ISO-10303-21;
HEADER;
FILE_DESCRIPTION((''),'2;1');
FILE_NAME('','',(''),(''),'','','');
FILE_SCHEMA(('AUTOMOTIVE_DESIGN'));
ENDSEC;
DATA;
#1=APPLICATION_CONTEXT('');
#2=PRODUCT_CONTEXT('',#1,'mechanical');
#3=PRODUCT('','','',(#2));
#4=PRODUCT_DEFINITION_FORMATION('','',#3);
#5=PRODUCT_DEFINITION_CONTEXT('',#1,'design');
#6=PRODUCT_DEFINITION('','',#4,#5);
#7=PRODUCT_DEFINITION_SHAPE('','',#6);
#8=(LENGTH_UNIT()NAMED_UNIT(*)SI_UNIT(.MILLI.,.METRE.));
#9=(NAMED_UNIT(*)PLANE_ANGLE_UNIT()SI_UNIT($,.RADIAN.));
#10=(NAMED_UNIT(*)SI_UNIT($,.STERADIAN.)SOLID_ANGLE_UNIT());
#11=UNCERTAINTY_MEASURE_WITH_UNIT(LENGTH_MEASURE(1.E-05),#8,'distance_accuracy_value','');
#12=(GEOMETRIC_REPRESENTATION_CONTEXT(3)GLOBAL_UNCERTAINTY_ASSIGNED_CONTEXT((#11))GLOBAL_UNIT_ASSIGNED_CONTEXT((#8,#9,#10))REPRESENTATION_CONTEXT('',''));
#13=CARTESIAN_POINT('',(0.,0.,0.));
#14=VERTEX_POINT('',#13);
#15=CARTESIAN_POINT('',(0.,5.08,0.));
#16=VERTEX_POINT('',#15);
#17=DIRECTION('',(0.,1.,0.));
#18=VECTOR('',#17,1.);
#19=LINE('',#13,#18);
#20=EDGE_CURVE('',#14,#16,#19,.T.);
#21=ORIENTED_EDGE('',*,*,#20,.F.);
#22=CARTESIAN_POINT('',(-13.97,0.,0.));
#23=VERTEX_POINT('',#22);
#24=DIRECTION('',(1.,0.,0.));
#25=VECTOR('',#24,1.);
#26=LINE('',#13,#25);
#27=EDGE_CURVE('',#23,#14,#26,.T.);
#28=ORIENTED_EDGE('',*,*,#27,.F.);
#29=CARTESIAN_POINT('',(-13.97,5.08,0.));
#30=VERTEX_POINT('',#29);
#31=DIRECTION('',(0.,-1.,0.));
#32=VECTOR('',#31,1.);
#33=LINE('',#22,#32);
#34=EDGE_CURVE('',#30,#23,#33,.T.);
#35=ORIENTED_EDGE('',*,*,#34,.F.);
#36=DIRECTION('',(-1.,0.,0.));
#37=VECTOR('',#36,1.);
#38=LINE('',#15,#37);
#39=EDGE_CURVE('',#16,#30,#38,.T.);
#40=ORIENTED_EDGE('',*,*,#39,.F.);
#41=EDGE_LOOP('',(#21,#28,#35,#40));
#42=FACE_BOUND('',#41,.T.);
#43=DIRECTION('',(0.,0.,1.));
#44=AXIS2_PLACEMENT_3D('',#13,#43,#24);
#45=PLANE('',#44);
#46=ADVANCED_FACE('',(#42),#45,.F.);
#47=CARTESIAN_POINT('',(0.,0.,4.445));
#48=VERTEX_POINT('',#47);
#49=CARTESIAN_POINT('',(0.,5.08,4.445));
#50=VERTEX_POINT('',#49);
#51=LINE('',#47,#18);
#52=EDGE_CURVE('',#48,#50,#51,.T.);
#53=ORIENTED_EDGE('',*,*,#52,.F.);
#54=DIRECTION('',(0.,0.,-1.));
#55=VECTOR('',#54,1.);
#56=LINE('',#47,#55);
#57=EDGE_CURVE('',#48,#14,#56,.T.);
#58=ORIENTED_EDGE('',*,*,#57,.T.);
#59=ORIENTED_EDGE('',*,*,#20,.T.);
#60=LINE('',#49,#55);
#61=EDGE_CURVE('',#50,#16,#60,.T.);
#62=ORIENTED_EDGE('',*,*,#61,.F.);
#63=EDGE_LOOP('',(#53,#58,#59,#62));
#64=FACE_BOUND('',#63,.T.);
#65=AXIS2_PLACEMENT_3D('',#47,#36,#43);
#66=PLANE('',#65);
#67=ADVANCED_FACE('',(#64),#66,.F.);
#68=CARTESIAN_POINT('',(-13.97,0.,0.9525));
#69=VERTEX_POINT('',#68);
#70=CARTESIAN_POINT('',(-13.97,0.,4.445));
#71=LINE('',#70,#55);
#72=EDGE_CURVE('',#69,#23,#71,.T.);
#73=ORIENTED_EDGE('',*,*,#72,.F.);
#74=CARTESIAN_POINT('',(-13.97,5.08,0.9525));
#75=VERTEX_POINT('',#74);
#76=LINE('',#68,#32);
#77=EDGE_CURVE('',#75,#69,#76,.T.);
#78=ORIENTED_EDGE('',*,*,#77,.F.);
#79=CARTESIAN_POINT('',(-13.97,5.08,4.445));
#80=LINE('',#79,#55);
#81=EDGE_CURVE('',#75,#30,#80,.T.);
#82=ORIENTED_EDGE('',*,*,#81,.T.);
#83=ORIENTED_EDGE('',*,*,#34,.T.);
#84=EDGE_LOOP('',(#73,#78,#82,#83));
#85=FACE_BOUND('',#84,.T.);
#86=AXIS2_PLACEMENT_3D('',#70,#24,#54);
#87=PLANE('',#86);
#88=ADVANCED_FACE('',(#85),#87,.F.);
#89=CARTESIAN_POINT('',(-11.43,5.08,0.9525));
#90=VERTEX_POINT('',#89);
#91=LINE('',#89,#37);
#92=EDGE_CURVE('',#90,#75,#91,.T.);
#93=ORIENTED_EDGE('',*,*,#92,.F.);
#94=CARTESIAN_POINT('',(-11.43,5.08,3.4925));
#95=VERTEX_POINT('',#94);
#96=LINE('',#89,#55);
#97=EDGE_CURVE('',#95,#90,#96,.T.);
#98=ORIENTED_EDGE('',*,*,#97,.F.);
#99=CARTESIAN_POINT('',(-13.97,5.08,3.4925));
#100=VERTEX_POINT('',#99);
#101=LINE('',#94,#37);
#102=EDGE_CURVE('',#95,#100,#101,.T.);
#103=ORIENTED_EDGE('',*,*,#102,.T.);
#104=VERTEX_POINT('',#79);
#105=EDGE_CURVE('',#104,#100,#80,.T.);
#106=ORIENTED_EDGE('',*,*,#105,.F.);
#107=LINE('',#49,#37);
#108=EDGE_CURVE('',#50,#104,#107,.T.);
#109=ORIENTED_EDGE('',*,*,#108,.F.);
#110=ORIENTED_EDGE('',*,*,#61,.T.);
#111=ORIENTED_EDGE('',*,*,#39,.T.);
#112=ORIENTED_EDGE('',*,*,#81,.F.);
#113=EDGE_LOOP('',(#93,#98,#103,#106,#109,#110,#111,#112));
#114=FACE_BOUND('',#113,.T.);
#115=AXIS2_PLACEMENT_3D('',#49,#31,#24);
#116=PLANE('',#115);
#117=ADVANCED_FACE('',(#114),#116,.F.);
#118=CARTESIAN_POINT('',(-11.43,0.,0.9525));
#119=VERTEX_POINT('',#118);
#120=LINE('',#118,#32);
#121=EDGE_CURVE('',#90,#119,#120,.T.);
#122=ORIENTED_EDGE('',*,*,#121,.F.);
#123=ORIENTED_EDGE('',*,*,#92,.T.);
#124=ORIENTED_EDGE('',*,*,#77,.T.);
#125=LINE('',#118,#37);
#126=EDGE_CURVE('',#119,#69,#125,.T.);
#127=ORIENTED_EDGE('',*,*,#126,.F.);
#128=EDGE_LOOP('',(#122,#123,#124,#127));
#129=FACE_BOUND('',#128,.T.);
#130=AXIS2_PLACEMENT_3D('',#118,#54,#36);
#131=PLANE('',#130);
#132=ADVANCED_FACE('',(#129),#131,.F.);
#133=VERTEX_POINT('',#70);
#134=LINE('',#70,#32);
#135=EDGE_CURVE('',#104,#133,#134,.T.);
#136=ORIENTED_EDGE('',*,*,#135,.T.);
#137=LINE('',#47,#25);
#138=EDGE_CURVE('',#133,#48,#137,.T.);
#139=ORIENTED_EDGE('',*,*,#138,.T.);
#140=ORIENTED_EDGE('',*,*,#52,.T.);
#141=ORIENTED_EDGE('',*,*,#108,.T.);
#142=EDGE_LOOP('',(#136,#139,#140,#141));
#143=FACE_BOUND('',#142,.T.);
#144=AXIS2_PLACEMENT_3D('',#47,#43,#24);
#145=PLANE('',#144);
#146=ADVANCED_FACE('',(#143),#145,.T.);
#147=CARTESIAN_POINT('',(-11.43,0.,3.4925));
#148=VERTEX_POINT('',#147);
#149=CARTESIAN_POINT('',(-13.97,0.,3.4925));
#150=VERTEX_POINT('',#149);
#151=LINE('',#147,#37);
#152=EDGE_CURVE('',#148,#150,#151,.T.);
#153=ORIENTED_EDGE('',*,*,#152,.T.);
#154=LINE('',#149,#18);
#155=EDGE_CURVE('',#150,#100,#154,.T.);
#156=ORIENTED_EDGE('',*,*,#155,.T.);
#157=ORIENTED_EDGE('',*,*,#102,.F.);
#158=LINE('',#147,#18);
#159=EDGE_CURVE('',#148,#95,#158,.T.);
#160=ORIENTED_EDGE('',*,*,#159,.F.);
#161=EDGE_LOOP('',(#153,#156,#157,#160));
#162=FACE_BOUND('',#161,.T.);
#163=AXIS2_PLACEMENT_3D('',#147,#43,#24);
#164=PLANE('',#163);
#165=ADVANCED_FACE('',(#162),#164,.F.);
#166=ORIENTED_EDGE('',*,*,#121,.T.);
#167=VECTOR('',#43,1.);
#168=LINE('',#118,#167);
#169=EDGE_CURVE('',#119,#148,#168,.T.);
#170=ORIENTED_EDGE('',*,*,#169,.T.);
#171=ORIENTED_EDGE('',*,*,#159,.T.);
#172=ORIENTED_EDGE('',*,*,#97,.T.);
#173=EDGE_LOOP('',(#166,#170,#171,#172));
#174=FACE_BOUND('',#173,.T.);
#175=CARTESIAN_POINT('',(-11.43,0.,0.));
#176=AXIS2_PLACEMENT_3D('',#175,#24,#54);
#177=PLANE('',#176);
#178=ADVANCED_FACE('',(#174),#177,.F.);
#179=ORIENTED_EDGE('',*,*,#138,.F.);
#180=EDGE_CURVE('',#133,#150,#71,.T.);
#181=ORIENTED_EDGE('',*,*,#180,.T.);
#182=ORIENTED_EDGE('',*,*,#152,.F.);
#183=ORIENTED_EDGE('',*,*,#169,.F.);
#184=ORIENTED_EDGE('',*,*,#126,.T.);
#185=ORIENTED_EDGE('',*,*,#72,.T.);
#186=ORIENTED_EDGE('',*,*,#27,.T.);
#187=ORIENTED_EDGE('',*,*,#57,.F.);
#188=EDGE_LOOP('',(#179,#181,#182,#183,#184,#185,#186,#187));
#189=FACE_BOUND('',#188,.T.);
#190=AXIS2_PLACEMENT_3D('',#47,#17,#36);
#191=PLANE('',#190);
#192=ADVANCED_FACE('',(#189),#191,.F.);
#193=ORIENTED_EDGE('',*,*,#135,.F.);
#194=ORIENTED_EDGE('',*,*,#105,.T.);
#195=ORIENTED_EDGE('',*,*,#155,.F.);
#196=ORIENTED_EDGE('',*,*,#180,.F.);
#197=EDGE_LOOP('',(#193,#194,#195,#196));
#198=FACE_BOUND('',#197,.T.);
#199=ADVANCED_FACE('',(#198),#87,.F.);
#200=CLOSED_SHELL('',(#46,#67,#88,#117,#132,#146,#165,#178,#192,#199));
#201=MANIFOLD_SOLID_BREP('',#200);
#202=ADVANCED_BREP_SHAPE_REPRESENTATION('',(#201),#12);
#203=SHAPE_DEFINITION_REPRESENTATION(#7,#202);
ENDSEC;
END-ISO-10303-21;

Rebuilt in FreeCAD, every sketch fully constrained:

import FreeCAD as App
import Part
import Sketcher

V = App.Vector
Q = App.Units.Quantity


def add_polygon(sketch, points):
    """Adds a closed chain of lines whose ends are joined by coincident constraints."""
    first, n = sketch.GeometryCount, len(points)
    for a, b in zip(points, points[1:] + points[:1]):
        sketch.addGeometry(Part.LineSegment(App.Vector(*a, 0), App.Vector(*b, 0)), False)
    for i in range(n):
        sketch.addConstraint(Sketcher.Constraint("Coincident", first + i, 2, first + (i + 1) % n, 1))

doc = App.newDocument("Part")
body = doc.addObject("PartDesign::Body", "Body")

# Sketch on XY plane
sketch1 = body.newObject("Sketcher::SketchObject", "Sketch")
sketch1.AttachmentSupport = (doc.getObject("XY_Plane"), [""])
sketch1.MapMode = "FlatFace"
add_polygon(sketch1, [(-13.97, 5.08), (-13.97, 0), (0, 0), (0, 5.08)])  # lines 0-3
sketch1.addConstraint(Sketcher.Constraint("Vertical", 0))
sketch1.addConstraint(Sketcher.Constraint("Horizontal", 1))
sketch1.addConstraint(Sketcher.Constraint("Vertical", 2))
sketch1.addConstraint(Sketcher.Constraint("Horizontal", 3))
sketch1.addConstraint(Sketcher.Constraint("Coincident", 1, 2, -1, 1))
sketch1.addConstraint(Sketcher.Constraint("DistanceY", 0, 2, 0, 1, Q("0.2 in")))
sketch1.addConstraint(Sketcher.Constraint("DistanceX", 1, 1, 1, 2, Q("0.55 in")))
pad1 = body.newObject("PartDesign::Pad", "Pad")
pad1.Profile = sketch1
pad1.Length = Q("0.175 in")

# Sketch on YZ plane
sketch2 = body.newObject("Sketcher::SketchObject", "Sketch001")
sketch2.AttachmentSupport = (doc.getObject("YZ_Plane"), [""])
sketch2.MapMode = "FlatFace"
sketch2.AttachmentOffset = App.Placement(V(0, 0, -0.55 * 25.4), App.Rotation())
add_polygon(sketch2, [(5.08, 0.9525), (0, 0.9525), (0, 3.4925), (5.08, 3.4925)])  # lines 0-3
sketch2.addConstraint(Sketcher.Constraint("Horizontal", 0))
sketch2.addConstraint(Sketcher.Constraint("Vertical", 1))
sketch2.addConstraint(Sketcher.Constraint("Horizontal", 2))
sketch2.addConstraint(Sketcher.Constraint("Vertical", 3))
sketch2.addConstraint(Sketcher.Constraint("PointOnObject", 0, 2, -2))
sketch2.addConstraint(Sketcher.Constraint("DistanceX", 0, 2, 0, 1, Q("0.2 in")))
sketch2.addConstraint(Sketcher.Constraint("DistanceY", 1, 1, 1, 2, Q("0.1 in")))
sketch2.addConstraint(Sketcher.Constraint("DistanceY", -1, 1, 0, 2, Q("0.0375 in")))
pocket1 = body.newObject("PartDesign::Pocket", "Pocket")
pocket1.Profile = sketch2
pocket1.Length = Q("0.1 in")
pocket1.Reversed = True

doc.recompute()
